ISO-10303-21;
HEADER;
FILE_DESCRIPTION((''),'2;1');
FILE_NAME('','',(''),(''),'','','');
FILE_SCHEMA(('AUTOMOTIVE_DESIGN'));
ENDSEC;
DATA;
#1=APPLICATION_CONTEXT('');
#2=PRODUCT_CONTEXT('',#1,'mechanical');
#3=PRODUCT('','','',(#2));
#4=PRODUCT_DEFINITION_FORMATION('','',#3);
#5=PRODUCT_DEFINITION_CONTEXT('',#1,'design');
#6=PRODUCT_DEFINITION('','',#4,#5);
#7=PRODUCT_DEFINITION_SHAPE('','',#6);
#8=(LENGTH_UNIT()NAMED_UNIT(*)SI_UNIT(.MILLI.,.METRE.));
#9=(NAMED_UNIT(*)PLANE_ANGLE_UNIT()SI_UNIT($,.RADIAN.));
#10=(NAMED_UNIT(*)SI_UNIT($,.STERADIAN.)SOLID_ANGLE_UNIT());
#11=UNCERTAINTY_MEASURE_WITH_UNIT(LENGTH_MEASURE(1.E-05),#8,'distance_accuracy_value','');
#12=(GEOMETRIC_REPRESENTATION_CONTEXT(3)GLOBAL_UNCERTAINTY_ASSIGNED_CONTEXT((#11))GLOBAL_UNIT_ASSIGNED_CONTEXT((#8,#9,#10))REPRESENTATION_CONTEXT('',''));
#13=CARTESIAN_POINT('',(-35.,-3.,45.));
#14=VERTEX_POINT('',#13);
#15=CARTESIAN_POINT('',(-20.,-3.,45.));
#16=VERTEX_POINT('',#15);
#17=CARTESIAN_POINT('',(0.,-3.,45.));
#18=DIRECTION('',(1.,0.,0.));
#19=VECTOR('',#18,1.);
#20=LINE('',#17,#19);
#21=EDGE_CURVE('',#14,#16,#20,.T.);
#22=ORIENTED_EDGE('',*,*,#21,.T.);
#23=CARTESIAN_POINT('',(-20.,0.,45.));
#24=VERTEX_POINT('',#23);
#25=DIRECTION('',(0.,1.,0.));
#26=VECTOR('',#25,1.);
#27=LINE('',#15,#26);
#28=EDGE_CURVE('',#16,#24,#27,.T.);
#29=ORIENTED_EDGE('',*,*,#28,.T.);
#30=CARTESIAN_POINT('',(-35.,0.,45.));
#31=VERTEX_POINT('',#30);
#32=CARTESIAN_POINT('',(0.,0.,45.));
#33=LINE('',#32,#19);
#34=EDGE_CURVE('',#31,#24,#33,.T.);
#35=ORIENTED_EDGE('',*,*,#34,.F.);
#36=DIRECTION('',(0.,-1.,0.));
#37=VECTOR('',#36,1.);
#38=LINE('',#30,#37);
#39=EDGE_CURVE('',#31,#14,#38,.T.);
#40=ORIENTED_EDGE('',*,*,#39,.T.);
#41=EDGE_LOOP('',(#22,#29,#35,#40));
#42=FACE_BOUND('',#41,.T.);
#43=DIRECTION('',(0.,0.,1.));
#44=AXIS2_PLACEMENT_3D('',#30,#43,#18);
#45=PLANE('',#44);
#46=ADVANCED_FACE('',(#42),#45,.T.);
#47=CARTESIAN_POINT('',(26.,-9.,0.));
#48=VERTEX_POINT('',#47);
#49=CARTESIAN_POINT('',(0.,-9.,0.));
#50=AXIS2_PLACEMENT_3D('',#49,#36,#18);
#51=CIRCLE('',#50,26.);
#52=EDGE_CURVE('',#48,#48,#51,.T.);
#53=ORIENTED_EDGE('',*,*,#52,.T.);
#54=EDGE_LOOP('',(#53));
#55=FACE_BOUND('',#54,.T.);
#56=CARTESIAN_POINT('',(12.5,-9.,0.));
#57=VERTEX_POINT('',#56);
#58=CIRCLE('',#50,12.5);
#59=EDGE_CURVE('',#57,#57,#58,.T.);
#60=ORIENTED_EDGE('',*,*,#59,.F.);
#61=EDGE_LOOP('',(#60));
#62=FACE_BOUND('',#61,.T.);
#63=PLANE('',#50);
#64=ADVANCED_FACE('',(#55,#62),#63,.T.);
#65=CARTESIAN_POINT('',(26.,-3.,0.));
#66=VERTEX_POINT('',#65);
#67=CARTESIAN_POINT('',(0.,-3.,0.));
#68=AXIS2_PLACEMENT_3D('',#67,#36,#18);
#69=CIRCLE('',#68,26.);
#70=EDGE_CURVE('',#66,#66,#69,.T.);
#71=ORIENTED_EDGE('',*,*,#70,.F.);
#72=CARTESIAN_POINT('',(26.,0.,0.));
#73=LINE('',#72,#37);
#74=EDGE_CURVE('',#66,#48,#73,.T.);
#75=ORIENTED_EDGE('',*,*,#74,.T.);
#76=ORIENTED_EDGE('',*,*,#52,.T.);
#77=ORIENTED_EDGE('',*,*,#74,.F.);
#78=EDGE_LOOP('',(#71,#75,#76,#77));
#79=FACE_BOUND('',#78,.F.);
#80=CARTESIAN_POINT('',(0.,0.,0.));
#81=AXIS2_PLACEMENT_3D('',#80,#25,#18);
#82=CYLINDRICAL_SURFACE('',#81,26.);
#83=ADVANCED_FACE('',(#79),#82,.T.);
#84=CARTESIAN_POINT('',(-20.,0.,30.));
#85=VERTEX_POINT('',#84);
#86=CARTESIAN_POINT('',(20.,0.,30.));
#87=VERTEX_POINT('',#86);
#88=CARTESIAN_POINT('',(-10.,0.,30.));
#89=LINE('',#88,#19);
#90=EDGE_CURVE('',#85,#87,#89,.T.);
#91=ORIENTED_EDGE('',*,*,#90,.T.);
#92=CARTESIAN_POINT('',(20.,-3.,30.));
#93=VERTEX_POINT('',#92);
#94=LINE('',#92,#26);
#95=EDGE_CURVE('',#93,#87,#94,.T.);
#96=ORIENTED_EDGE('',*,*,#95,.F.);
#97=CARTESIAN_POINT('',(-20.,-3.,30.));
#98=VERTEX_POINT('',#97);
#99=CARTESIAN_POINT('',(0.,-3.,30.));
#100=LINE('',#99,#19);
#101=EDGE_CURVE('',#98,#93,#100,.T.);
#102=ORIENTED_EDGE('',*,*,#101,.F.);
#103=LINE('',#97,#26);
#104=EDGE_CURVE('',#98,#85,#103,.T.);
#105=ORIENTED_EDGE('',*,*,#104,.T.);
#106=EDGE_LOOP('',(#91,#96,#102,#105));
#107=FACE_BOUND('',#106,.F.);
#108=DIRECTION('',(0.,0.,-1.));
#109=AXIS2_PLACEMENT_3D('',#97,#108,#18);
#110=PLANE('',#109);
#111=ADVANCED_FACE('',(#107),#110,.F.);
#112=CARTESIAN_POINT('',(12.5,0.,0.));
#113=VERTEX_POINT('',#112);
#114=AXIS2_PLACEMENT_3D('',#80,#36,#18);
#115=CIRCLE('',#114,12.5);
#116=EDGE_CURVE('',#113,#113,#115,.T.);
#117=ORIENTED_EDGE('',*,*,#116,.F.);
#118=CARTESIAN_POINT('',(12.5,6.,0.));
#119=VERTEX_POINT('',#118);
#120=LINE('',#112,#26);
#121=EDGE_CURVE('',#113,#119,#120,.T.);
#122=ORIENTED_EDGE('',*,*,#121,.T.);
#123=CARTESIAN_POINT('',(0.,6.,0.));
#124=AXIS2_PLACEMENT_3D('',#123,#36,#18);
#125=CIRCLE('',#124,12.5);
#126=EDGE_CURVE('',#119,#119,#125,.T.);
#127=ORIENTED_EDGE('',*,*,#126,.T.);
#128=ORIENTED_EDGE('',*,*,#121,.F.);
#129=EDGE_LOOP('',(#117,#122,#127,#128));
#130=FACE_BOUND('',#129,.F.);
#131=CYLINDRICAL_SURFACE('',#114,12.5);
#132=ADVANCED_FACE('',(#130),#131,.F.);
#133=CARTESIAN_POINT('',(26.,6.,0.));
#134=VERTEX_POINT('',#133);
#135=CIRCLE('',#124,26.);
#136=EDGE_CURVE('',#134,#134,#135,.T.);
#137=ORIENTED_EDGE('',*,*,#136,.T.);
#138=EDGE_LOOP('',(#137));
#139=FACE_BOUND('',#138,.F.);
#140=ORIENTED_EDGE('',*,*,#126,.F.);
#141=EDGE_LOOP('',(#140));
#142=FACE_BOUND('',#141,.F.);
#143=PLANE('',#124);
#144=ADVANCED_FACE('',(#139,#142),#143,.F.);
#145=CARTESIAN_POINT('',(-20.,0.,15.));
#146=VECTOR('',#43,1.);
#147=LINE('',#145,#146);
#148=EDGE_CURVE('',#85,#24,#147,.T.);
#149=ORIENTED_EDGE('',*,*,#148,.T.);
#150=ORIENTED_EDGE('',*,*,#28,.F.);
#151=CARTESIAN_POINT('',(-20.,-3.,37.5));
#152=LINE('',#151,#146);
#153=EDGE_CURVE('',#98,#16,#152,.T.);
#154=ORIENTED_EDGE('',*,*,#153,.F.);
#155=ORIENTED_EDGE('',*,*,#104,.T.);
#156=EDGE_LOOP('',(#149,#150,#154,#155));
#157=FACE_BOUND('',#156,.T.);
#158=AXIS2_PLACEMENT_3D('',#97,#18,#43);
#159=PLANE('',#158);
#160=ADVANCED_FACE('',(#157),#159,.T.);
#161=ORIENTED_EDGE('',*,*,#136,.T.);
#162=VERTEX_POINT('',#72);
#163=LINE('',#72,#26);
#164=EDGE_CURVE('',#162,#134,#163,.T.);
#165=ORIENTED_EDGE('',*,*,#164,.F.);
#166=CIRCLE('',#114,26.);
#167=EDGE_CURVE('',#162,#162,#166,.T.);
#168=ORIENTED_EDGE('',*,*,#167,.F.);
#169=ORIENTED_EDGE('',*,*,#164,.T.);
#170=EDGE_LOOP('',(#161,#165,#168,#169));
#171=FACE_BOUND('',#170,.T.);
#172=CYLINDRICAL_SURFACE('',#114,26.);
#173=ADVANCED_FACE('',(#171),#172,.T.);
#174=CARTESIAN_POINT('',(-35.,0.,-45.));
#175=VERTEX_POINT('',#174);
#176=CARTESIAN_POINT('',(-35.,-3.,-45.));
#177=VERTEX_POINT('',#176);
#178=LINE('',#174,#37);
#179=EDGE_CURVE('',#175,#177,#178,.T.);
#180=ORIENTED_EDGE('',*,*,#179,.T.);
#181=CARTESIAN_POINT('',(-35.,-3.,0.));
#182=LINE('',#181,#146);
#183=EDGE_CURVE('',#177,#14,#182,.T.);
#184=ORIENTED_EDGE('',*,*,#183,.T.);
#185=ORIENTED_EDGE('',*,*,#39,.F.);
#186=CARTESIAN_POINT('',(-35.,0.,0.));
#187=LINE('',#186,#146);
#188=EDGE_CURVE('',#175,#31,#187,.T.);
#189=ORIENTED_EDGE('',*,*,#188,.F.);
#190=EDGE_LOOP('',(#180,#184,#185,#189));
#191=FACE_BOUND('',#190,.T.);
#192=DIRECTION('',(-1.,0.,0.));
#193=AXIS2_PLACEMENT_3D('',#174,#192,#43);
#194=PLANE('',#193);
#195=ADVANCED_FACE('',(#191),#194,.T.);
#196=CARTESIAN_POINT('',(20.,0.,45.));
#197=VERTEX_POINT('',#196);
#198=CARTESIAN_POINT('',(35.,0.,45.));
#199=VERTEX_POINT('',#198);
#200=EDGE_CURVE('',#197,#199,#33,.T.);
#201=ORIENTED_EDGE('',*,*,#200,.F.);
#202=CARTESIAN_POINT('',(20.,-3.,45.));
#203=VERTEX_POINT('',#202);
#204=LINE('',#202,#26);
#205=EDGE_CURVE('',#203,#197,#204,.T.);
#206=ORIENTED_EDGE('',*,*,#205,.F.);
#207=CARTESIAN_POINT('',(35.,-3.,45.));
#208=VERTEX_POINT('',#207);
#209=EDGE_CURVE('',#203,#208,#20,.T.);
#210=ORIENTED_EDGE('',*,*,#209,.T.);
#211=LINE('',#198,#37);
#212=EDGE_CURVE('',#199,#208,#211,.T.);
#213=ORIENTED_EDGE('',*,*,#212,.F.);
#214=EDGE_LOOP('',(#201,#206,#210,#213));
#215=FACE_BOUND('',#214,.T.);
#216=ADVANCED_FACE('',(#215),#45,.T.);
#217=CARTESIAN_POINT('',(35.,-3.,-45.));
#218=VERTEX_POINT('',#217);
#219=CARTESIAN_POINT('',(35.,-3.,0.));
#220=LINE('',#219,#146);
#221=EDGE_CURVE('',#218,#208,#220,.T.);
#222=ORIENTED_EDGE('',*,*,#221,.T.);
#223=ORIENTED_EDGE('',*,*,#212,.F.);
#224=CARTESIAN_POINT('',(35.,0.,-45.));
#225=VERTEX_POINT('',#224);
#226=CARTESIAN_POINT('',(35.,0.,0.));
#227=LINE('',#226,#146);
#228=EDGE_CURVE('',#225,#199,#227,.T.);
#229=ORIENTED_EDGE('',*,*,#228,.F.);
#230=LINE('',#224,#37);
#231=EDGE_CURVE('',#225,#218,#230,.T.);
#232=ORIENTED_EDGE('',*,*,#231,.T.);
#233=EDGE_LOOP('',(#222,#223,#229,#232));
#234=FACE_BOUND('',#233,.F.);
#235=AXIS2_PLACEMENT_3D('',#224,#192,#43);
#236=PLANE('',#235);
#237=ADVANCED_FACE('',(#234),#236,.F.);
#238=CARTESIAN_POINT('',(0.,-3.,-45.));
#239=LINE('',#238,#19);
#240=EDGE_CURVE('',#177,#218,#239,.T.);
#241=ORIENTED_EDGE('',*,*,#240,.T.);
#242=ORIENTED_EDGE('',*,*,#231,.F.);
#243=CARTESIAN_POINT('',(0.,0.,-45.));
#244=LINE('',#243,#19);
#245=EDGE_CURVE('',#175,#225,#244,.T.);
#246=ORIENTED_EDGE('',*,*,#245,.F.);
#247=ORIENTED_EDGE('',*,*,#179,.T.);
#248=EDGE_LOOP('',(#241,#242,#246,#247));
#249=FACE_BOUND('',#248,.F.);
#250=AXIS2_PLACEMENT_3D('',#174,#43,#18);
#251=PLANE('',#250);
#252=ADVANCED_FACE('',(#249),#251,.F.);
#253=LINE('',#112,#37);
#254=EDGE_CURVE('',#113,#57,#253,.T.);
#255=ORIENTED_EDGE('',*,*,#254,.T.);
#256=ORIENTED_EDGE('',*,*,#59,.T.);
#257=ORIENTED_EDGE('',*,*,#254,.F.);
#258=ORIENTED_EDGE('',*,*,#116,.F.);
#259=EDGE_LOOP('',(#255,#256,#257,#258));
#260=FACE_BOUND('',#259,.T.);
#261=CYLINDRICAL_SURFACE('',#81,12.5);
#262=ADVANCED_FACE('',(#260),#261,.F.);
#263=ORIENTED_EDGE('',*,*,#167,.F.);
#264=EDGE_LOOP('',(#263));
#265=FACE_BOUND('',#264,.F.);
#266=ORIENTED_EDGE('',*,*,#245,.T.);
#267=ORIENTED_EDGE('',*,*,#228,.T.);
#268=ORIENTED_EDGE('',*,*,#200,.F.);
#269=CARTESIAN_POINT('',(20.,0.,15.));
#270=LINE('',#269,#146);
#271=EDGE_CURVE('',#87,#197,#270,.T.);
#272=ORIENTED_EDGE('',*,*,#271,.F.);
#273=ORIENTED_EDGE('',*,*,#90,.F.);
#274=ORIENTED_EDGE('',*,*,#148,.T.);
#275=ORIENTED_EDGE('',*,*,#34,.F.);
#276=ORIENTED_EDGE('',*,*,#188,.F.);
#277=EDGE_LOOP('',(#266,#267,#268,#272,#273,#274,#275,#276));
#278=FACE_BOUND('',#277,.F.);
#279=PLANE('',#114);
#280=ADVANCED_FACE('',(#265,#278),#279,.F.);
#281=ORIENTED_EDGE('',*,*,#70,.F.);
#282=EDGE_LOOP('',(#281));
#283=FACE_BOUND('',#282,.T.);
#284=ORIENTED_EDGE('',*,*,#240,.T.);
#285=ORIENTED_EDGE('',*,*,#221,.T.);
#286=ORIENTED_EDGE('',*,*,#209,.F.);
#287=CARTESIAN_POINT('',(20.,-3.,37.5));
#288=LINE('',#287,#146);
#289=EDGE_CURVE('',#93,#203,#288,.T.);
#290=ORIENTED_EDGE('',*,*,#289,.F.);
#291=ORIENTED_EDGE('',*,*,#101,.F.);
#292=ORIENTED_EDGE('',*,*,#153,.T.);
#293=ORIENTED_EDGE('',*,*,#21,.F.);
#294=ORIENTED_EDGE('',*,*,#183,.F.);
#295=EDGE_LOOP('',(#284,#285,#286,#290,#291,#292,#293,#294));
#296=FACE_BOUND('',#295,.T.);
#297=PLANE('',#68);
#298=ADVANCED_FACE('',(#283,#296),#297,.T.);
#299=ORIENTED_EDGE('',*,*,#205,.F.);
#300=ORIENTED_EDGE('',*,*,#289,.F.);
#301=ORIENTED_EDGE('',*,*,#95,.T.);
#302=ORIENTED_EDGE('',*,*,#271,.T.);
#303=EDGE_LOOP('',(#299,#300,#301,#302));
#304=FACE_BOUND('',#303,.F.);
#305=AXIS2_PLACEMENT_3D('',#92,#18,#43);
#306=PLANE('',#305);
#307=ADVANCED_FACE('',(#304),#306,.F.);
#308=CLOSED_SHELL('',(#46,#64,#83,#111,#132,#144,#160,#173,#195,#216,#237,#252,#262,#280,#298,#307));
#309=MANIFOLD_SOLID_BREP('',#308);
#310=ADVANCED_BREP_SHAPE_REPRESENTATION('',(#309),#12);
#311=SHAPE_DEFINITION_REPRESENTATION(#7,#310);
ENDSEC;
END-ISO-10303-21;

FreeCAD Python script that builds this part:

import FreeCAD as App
import Part
import Sketcher

V = App.Vector
Q = App.Units.Quantity

doc = App.newDocument("Part")
body = doc.addObject("PartDesign::Body", "Body")

# Sketch on XZ plane
sketch1 = body.newObject("Sketcher::SketchObject", "Sketch")
sketch1.AttachmentSupport = (doc.getObject("XZ_Plane"), [""])
sketch1.MapMode = "FlatFace"
sketch1.addGeometry([
    Part.LineSegment(V(-35, 45, 0), V(-35, -45, 0)),
    Part.LineSegment(V(-35, -45, 0), V(35, -45, 0)),
    Part.LineSegment(V(35, -45, 0), V(35, 45, 0)),
    Part.LineSegment(V(35, 45, 0), V(-35, 45, 0)),
], False)
sketch1.addConstraint([
    Sketcher.Constraint("Coincident", 0, 2, 1, 1),
    Sketcher.Constraint("Coincident", 1, 2, 2, 1),
    Sketcher.Constraint("Coincident", 2, 2, 3, 1),
    Sketcher.Constraint("Coincident", 3, 2, 0, 1),
    Sketcher.Constraint("Vertical", 0),
    Sketcher.Constraint("Horizontal", 1),
    Sketcher.Constraint("Vertical", 2),
    Sketcher.Constraint("Horizontal", 3),
    Sketcher.Constraint("Symmetric", 0, 2, 2, 2, -1, 1),
    Sketcher.Constraint("DistanceX", 1, 1, 1, 2, Q("70 mm")),
    Sketcher.Constraint("DistanceY", 0, 2, 0, 1, Q("90 mm")),
])
pad1 = body.newObject("PartDesign::Pad", "Pad")
pad1.Profile = sketch1
pad1.Length = 3

# Sketch on XZ plane
sketch2 = body.newObject("Sketcher::SketchObject", "Sketch001")
sketch2.AttachmentSupport = (doc.getObject("XZ_Plane"), [""])
sketch2.MapMode = "FlatFace"
sketch2.addGeometry(Part.Circle(V(0, 0, 0), V(0, 0, 1), 26), False)
sketch2.addConstraint([
    Sketcher.Constraint("Coincident", 0, 3, -1, 1),
    Sketcher.Constraint("Diameter", 0, Q("52 mm")),
])
doc.recompute()
hole = body.newObject("PartDesign::Hole", "Hole")
hole.Profile = sketch2
hole.ThreadType = "None"
hole.Diameter = 52
hole.DepthType = "ThroughAll"
hole.Reversed = True

# Sketch on XZ plane
sketch3 = body.newObject("Sketcher::SketchObject", "Sketch002")
sketch3.AttachmentSupport = (doc.getObject("XZ_Plane"), [""])
sketch3.MapMode = "FlatFace"
sketch3.addGeometry([
    Part.Circle(V(0, 0, 0), V(0, 0, 1), 26),
    Part.Circle(V(0, 0, 0), V(0, 0, 1), 12.5),
], False)
sketch3.addConstraint([
    Sketcher.Constraint("Coincident", 0, 3, -1, 1),
    Sketcher.Constraint("Coincident", 1, 3, -1, 1),
    Sketcher.Constraint("Diameter", 0, Q("52 mm")),
    Sketcher.Constraint("Diameter", 1, Q("25 mm")),
])
pad2 = body.newObject("PartDesign::Pad", "Pad001")
pad2.Profile = sketch3
pad2.Type = "TwoLengths"
pad2.Length = 9
pad2.Length2 = 6

# Sketch on XZ plane
sketch4 = body.newObject("Sketcher::SketchObject", "Sketch003")
sketch4.AttachmentSupport = (doc.getObject("XZ_Plane"), [""])
sketch4.MapMode = "FlatFace"
sketch4.AttachmentOffset = App.Placement(V(0, 0, 3), App.Rotation())
sketch4.addGeometry([
    Part.LineSegment(V(-20, 45, 0), V(-20, 30, 0)),
    Part.LineSegment(V(-20, 30, 0), V(20, 30, 0)),
    Part.LineSegment(V(20, 30, 0), V(20, 45, 0)),
    Part.LineSegment(V(20, 45, 0), V(-20, 45, 0)),
], False)
sketch4.addConstraint([
    Sketcher.Constraint("Coincident", 0, 2, 1, 1),
    Sketcher.Constraint("Coincident", 1, 2, 2, 1),
    Sketcher.Constraint("Coincident", 2, 2, 3, 1),
    Sketcher.Constraint("Coincident", 3, 2, 0, 1),
    Sketcher.Constraint("Vertical", 0),
    Sketcher.Constraint("Horizontal", 1),
    Sketcher.Constraint("Vertical", 2),
    Sketcher.Constraint("Horizontal", 3),
    Sketcher.Constraint("DistanceX", 1, 1, 1, 2, Q("40 mm")),
    Sketcher.Constraint("DistanceY", 0, 2, 0, 1, Q("15 mm")),
    Sketcher.Constraint("DistanceX", 0, 2, -1, 1, Q("20 mm")),
    Sketcher.Constraint("DistanceY", -1, 1, 0, 2, Q("30 mm")),
])
pocket1 = body.newObject("PartDesign::Pocket", "Pocket")
pocket1.Profile = sketch4
pocket1.Length = 25

doc.recompute()
